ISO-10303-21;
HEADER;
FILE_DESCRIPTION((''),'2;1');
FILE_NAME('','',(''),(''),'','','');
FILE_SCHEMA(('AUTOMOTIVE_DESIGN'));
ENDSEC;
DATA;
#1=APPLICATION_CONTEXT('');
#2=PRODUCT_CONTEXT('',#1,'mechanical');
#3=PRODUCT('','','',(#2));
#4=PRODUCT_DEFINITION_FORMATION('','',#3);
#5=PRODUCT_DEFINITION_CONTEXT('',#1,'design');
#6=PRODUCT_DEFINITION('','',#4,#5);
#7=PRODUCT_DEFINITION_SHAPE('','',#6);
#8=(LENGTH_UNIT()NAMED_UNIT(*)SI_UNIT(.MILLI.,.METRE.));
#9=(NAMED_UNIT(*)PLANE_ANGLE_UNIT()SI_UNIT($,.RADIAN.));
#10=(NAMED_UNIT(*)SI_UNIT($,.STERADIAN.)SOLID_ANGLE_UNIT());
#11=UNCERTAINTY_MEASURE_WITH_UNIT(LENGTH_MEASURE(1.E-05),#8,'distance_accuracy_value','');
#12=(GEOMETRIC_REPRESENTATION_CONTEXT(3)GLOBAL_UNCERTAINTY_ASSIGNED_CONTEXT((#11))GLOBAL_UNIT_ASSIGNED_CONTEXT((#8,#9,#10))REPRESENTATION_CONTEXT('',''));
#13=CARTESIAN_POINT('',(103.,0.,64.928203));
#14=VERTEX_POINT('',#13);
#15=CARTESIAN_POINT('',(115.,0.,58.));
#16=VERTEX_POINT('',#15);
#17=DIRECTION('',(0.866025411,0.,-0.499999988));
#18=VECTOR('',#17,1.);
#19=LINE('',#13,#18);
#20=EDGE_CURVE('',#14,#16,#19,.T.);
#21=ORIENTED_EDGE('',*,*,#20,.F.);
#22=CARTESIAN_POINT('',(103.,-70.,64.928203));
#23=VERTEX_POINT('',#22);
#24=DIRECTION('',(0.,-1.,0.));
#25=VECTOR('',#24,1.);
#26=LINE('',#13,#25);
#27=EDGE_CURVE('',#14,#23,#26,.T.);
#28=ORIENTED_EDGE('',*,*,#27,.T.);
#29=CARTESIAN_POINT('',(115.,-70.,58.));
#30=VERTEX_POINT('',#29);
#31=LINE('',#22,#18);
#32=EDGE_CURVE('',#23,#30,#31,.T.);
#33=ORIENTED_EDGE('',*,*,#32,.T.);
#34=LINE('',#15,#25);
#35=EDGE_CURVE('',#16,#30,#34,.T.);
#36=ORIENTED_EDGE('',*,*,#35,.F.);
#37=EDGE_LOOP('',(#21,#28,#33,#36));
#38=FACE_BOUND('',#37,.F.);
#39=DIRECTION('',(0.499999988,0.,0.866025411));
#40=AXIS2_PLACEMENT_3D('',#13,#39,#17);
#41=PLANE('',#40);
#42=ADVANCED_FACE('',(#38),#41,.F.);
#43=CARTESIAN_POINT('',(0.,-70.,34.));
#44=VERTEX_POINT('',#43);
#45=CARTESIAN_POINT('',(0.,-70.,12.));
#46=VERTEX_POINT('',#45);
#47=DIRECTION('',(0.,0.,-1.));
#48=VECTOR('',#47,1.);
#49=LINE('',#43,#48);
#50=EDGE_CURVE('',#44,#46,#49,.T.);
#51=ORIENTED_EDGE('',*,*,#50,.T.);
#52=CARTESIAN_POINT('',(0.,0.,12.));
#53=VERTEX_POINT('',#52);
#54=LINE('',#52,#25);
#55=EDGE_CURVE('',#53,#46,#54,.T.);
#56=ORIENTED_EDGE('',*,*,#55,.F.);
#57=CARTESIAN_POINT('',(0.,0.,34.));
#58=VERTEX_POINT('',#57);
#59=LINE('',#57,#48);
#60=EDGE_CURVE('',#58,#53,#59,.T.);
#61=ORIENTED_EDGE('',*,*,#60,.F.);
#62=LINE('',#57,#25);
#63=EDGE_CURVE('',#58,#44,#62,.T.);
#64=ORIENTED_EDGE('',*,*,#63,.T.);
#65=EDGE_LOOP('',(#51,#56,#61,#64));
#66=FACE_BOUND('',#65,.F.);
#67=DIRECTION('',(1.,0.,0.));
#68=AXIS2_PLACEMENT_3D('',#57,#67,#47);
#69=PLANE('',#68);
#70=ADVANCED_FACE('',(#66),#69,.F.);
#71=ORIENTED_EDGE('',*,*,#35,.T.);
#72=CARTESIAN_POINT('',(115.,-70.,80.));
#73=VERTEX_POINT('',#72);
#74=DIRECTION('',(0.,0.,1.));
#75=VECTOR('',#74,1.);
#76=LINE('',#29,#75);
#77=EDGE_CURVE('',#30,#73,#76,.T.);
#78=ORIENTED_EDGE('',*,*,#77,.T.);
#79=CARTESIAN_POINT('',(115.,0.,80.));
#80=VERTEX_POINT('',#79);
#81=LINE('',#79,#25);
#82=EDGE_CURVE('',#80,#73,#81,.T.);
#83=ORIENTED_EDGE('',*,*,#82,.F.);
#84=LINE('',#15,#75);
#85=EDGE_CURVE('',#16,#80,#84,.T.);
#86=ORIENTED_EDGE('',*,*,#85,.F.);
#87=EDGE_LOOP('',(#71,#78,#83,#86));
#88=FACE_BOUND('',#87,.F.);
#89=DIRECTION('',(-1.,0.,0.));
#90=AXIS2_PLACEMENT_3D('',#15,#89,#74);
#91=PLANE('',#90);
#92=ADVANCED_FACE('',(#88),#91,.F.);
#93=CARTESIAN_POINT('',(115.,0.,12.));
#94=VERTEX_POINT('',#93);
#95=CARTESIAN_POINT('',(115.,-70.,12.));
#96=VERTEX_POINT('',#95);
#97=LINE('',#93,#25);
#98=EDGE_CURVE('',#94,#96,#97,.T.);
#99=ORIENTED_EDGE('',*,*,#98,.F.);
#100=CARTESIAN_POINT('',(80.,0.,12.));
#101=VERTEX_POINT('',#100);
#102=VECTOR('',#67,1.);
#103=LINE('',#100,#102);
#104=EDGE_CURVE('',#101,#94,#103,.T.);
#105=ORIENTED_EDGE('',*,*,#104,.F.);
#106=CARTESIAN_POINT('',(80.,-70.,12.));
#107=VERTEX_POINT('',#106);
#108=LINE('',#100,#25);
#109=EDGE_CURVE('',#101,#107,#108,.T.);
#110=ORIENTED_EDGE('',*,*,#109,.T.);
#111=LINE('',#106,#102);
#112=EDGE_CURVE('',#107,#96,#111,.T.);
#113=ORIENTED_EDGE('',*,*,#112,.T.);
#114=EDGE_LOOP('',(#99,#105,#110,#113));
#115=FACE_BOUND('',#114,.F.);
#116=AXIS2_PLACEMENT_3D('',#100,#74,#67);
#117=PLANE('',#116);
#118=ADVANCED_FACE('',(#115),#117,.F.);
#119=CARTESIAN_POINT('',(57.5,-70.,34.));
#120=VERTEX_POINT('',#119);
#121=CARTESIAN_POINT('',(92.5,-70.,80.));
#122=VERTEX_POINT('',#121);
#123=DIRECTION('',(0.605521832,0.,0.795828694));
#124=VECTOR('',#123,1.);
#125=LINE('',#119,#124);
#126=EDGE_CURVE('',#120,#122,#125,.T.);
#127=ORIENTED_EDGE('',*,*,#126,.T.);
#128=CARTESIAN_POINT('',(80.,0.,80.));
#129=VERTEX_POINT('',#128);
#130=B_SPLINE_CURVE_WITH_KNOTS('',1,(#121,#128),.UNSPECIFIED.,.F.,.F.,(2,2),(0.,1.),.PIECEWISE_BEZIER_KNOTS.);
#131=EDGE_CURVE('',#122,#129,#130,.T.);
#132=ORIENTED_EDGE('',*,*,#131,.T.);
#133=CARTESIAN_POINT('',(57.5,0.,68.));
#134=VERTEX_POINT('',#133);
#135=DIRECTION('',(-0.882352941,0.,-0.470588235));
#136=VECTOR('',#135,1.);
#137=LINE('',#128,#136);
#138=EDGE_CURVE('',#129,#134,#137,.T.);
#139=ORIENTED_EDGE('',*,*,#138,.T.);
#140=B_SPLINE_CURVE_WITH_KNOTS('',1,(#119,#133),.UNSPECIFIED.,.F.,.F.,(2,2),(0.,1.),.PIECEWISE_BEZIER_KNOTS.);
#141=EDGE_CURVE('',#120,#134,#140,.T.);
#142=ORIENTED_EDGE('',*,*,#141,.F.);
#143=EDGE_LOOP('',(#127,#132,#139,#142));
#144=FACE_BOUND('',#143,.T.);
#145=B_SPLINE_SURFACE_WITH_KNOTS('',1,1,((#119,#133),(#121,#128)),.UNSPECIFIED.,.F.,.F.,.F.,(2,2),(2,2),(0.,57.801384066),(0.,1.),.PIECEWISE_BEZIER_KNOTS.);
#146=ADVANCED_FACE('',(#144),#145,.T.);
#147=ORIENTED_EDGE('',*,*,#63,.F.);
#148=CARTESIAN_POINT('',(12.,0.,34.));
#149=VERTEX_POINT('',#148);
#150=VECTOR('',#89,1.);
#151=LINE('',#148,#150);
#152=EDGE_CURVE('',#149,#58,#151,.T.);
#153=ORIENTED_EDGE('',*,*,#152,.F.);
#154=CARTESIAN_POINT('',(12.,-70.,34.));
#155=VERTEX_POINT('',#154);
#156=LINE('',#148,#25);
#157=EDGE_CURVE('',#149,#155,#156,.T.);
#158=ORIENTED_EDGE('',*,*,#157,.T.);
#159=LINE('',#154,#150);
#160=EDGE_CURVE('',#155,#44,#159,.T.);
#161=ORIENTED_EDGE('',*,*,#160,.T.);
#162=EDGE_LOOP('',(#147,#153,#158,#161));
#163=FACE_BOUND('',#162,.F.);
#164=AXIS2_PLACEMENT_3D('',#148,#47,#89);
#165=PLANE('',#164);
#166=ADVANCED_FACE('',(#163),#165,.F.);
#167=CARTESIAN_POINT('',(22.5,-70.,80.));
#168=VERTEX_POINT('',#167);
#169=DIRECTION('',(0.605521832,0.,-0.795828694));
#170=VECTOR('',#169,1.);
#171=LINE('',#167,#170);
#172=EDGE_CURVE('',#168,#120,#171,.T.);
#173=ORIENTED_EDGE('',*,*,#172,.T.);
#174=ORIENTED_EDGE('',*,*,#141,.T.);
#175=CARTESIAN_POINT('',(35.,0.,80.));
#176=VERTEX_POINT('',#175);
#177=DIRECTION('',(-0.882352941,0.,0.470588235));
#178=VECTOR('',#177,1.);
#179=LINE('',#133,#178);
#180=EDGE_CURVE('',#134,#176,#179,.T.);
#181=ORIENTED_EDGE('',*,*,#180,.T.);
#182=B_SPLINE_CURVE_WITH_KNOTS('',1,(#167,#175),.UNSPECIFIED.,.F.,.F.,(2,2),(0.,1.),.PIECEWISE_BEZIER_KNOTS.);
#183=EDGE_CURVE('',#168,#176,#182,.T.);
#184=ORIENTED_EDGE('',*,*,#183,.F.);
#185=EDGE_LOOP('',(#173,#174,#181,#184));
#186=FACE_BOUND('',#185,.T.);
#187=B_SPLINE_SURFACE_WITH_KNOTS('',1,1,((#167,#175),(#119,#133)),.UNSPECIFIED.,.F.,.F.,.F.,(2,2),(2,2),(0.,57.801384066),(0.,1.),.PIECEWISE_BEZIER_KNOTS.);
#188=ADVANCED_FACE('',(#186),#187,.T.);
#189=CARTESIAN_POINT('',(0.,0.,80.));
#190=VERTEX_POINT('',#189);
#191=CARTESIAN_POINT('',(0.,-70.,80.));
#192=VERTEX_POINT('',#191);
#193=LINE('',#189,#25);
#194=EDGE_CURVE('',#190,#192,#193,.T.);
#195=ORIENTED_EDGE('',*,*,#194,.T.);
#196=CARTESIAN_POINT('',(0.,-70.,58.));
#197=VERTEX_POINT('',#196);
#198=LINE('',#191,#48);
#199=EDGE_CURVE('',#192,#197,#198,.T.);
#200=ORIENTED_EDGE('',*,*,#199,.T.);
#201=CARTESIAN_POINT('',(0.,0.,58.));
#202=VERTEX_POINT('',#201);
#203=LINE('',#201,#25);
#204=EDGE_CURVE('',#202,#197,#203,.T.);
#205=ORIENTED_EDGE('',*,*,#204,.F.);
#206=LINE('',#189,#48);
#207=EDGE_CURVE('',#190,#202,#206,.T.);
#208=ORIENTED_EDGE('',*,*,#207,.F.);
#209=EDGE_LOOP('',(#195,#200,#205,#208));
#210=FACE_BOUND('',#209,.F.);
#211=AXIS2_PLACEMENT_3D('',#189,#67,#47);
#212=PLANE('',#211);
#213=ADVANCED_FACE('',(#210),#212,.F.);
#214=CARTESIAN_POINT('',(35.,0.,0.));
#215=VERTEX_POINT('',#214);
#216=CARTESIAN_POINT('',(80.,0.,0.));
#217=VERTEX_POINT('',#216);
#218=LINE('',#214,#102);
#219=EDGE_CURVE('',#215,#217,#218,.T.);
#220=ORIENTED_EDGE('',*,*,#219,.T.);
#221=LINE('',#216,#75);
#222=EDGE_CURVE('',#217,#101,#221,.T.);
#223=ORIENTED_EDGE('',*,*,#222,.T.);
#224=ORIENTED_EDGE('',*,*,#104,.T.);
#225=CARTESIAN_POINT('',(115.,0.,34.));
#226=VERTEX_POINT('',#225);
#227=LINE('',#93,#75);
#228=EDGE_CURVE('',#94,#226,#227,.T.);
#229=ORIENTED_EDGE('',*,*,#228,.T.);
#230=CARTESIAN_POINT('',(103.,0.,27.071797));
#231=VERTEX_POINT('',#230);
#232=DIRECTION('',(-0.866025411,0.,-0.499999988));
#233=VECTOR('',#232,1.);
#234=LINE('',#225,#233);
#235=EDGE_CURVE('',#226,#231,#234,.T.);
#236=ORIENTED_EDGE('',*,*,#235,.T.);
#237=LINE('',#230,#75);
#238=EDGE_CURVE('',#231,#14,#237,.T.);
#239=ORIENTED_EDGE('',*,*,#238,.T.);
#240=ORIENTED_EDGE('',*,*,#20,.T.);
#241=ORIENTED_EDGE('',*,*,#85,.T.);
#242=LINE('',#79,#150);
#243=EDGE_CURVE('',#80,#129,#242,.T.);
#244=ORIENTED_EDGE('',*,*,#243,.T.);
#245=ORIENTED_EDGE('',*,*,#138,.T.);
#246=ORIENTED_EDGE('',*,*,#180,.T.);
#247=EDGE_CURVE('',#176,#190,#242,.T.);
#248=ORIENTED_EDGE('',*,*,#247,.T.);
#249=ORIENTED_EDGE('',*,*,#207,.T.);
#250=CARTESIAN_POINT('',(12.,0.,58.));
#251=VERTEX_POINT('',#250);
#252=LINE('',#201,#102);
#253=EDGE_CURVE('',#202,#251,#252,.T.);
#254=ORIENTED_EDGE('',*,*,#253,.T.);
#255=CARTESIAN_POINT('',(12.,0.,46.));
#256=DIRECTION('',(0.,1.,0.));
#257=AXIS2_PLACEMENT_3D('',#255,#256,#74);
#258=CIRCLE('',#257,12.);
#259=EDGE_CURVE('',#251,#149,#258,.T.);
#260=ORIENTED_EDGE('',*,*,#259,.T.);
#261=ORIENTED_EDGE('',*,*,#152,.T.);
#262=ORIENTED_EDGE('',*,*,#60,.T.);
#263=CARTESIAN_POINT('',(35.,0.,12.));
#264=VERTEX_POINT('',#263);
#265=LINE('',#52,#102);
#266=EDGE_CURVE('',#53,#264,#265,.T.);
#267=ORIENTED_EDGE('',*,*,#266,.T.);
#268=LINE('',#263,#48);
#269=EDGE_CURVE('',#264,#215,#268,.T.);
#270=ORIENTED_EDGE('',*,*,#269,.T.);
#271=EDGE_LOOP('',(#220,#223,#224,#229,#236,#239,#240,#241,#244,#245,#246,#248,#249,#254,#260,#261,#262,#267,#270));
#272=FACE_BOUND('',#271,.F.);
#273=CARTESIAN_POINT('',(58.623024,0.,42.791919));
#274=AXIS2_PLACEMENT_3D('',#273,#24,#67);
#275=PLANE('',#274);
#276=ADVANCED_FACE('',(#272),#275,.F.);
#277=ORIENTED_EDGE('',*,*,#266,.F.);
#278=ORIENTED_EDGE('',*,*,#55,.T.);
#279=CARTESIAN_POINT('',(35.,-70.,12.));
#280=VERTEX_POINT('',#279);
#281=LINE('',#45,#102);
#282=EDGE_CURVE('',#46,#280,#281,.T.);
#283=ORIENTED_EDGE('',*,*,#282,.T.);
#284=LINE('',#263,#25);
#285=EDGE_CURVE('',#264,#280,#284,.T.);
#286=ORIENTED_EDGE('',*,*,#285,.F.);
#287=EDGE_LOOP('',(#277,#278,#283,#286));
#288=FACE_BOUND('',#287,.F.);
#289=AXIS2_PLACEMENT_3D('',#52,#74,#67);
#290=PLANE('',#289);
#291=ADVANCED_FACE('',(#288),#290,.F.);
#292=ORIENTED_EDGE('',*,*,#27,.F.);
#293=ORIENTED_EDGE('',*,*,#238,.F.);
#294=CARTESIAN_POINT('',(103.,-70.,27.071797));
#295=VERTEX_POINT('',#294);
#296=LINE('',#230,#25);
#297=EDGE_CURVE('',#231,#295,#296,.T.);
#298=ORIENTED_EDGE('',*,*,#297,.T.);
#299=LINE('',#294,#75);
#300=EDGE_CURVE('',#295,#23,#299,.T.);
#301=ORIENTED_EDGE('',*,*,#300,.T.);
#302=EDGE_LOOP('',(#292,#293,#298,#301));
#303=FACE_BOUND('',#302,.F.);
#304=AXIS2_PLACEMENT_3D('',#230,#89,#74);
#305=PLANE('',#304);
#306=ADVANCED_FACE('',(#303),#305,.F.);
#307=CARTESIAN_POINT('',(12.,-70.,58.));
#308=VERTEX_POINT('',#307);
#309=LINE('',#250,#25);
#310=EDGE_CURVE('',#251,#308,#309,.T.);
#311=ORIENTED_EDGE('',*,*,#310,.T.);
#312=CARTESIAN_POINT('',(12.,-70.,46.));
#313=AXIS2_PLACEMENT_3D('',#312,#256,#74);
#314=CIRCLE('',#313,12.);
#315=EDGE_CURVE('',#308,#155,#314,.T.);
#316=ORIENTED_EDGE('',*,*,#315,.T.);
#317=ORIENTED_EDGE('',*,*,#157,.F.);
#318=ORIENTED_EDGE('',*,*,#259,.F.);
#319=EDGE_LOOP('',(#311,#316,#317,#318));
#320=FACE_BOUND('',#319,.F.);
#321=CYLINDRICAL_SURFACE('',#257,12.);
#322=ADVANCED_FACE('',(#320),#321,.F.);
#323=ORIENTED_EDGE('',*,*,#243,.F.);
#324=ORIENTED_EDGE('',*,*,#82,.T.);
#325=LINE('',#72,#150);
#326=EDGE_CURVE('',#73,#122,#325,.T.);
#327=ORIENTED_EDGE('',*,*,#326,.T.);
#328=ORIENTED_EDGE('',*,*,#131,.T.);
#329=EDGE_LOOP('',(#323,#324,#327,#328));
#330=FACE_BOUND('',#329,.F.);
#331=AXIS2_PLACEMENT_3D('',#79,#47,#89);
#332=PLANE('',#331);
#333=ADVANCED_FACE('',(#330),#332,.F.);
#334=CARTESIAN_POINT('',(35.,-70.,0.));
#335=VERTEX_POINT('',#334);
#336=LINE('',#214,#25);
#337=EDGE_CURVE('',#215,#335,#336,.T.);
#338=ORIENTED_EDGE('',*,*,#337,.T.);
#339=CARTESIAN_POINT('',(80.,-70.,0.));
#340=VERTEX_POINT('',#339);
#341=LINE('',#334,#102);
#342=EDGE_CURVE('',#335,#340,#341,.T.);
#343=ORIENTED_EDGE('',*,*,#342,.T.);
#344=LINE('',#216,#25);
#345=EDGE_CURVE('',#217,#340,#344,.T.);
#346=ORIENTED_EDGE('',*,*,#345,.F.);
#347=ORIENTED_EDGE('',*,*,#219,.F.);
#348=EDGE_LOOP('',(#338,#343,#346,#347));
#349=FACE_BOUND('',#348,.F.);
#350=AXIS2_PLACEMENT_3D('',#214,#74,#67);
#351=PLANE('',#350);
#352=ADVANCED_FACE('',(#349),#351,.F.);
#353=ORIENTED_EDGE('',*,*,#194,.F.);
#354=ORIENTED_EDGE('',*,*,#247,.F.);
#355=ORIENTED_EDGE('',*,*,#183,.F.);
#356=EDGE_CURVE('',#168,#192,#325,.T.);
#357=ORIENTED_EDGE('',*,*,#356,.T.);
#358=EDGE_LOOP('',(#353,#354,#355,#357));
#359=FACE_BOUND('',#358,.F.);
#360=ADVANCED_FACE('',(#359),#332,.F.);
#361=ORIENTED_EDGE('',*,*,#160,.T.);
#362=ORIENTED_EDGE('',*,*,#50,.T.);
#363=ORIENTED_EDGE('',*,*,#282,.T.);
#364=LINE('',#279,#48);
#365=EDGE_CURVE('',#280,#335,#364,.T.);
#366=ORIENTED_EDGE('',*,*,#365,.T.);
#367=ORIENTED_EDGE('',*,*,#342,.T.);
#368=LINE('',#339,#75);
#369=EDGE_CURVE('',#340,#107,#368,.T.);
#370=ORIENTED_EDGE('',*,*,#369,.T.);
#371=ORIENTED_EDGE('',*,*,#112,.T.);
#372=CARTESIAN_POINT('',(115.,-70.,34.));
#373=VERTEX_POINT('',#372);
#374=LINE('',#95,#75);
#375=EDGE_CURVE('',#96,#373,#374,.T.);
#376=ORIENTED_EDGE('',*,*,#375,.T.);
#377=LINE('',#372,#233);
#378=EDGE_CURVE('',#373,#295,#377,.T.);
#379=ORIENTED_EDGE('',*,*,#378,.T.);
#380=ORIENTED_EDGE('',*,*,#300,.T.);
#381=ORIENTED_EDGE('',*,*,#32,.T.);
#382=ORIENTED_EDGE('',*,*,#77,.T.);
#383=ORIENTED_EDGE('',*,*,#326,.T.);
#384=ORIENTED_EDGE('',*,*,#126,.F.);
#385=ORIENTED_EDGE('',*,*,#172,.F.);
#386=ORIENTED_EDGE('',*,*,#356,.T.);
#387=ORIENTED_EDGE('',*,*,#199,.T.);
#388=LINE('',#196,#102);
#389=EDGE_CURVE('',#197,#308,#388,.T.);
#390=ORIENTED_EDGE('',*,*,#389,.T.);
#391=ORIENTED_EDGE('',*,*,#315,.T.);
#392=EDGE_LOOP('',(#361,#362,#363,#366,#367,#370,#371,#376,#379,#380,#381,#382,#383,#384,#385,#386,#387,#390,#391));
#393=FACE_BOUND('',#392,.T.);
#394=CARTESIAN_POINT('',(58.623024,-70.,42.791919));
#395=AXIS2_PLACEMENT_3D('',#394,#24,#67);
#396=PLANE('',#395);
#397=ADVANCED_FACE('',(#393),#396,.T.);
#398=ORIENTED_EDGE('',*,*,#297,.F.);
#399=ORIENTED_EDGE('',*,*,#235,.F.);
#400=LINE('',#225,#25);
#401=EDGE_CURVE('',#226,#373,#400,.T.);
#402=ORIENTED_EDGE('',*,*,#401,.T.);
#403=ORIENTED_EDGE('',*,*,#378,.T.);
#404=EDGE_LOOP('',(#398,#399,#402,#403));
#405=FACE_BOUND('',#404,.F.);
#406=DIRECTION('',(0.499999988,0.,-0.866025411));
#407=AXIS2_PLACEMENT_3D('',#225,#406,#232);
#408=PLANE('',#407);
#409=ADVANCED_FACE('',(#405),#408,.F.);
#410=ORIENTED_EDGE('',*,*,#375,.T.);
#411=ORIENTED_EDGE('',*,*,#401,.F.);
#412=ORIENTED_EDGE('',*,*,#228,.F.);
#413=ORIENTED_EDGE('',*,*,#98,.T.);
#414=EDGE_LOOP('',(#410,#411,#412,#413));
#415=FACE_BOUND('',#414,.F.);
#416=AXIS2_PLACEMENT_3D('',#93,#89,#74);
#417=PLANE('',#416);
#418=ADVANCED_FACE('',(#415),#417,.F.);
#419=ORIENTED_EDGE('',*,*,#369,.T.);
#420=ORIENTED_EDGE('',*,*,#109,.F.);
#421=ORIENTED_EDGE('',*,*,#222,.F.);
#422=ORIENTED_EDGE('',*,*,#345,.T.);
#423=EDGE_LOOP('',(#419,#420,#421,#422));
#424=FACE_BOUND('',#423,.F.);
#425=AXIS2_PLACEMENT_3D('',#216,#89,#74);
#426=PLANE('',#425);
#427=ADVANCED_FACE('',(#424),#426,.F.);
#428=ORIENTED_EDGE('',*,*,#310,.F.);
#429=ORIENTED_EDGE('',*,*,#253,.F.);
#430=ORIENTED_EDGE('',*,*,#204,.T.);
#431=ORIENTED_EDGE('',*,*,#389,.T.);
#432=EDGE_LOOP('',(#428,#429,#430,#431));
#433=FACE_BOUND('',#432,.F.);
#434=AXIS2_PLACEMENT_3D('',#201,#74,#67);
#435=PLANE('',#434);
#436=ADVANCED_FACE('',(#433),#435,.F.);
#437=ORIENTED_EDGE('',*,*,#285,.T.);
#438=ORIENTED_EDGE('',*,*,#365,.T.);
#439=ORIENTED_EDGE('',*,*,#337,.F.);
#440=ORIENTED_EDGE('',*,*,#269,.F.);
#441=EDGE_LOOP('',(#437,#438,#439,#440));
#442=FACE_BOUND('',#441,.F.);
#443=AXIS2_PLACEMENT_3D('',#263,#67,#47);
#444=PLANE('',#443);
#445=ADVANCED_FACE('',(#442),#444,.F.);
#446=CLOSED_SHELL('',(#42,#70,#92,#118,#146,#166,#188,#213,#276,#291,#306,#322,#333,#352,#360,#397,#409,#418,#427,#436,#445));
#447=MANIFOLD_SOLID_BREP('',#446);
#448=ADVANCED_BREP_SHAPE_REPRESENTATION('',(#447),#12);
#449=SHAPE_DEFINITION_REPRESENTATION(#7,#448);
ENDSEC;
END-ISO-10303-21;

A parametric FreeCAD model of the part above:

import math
import FreeCAD as App
import Part
import Sketcher
from FreeCAD import Vector
Q = App.Units.Quantity


def add_polygon(sketch, points):
    """Adds a closed chain of lines whose ends are joined by coincident constraints."""
    first, n = sketch.GeometryCount, len(points)
    for a, b in zip(points, points[1:] + points[:1]):
        sketch.addGeometry(Part.LineSegment(App.Vector(*a, 0), App.Vector(*b, 0)), False)
    for i in range(n):
        sketch.addConstraint(Sketcher.Constraint("Coincident", first + i, 2, first + (i + 1) % n, 1))

doc = App.newDocument("Part")
body = doc.addObject("PartDesign::Body", "Body")

# Sketch on XZ plane
sketch1 = body.newObject("Sketcher::SketchObject", "Sketch")
sketch1.AttachmentSupport = (doc.getObject("XZ_Plane"), [""])
sketch1.MapMode = "FlatFace"
sketch1.addGeometry([
    Part.LineSegment(Vector(0, 34, 0), Vector(0, 12, 0)),  # 0
    Part.LineSegment(Vector(0, 12, 0), Vector(35, 12, 0)),  # 1
    Part.LineSegment(Vector(35, 12, 0), Vector(35, 0, 0)),  # 2
    Part.LineSegment(Vector(35, 0, 0), Vector(80, 0, 0)),  # 3
    Part.LineSegment(Vector(80, 0, 0), Vector(80, 12, 0)),  # 4
    Part.LineSegment(Vector(80, 12, 0), Vector(115, 12, 0)),  # 5
    Part.LineSegment(Vector(115, 12, 0), Vector(115, 34, 0)),  # 6
    Part.LineSegment(Vector(115, 34, 0), Vector(103, 27, 0)),  # 7
    Part.LineSegment(Vector(103, 27, 0), Vector(103, 65, 0)),  # 8
    Part.LineSegment(Vector(103, 65, 0), Vector(115, 58, 0)),  # 9
    Part.LineSegment(Vector(115, 58, 0), Vector(115, 80, 0)),  # 10
    Part.LineSegment(Vector(115, 80, 0), Vector(0, 80, 0)),  # 11
    Part.LineSegment(Vector(0, 80, 0), Vector(0, 58, 0)),  # 12
    Part.LineSegment(Vector(0, 58, 0), Vector(12, 58, 0)),  # 13
    Part.ArcOfCircle(Part.Circle(Vector(12, 46, 0), Vector(0, 0, 1), 12), math.radians(-90), math.radians(90)),  # 14
    Part.LineSegment(Vector(12, 34, 0), Vector(0, 34, 0)),  # 15
], False)
sketch1.addConstraint([
    Sketcher.Constraint("Coincident", 0, 2, 1, 1),
    Sketcher.Constraint("Coincident", 1, 2, 2, 1),
    Sketcher.Constraint("Coincident", 2, 2, 3, 1),
    Sketcher.Constraint("Coincident", 3, 2, 4, 1),
    Sketcher.Constraint("Coincident", 4, 2, 5, 1),
    Sketcher.Constraint("Coincident", 5, 2, 6, 1),
    Sketcher.Constraint("Coincident", 6, 2, 7, 1),
    Sketcher.Constraint("Coincident", 7, 2, 8, 1),
    Sketcher.Constraint("Coincident", 8, 2, 9, 1),
    Sketcher.Constraint("Coincident", 9, 2, 10, 1),
    Sketcher.Constraint("Coincident", 10, 2, 11, 1),
    Sketcher.Constraint("Coincident", 11, 2, 12, 1),
    Sketcher.Constraint("Coincident", 12, 2, 13, 1),
    Sketcher.Constraint("Tangent", 13, 2, 14, 2),
    Sketcher.Constraint("Tangent", 14, 1, 15, 1),
    Sketcher.Constraint("Coincident", 15, 2, 0, 1),
    Sketcher.Constraint("Vertical", 0),
    Sketcher.Constraint("Horizontal", 1),
    Sketcher.Constraint("Vertical", 2),
    Sketcher.Constraint("Horizontal", 3),
    Sketcher.Constraint("Vertical", 4),
    Sketcher.Constraint("Horizontal", 5),
    Sketcher.Constraint("Vertical", 6),
    Sketcher.Constraint("Vertical", 8),
    Sketcher.Constraint("Vertical", 10),
    Sketcher.Constraint("Horizontal", 11),
    Sketcher.Constraint("Vertical", 12),
    Sketcher.Constraint("Horizontal", 13),
    Sketcher.Constraint("Horizontal", 15),
    Sketcher.Constraint("PointOnObject", 0, 2, -2),
    Sketcher.Constraint("PointOnObject", 2, 2, -1),
    Sketcher.Constraint("PointOnObject", 11, 2, -2),
    Sketcher.Constraint("Horizontal", 1, 2, 4, 2),
    Sketcher.Constraint("Horizontal", 9, 2, 12, 2),
    Sketcher.Constraint("Horizontal", 6, 2, 14, 1),
    Sketcher.Constraint("Vertical", 6, 2, 9, 2),
    Sketcher.Constraint("Equal", 1, 5),
    Sketcher.Constraint("Equal", 15, 2),
    Sketcher.Constraint("Equal", 6, 10),
    Sketcher.Constraint("Equal", 7, 9),
    Sketcher.Constraint("Radius", 14, 12.0),
    Sketcher.Constraint("DistanceX", 1, 1, 1, 2, 35.0),
    Sketcher.Constraint("DistanceX", 3, 1, 3, 2, 45.0),
    Sketcher.Constraint("DistanceX", 13, 1, 13, 2, 12.0),
    Sketcher.Constraint("DistanceY", 0, 2, 0, 1, 22.0),
    Sketcher.Constraint("Angle", 7, Q("-150.000001 deg")),
    Sketcher.Constraint("DistanceX", -1, 1, 7, 2, 103.0),
])
pad1 = body.newObject("PartDesign::Pad", "Pad")
pad1.Profile = sketch1
pad1.Length = 70

# Sketch on XZ plane
sketch2 = body.newObject("Sketcher::SketchObject", "Sketch001")
sketch2.AttachmentSupport = (doc.getObject("XZ_Plane"), [""])
sketch2.MapMode = "FlatFace"
sketch2.AttachmentOffset = App.Placement(Vector(0, 0, 70), App.Rotation())
add_polygon(sketch2, [(92, 80), (22, 80), (58, 34)])  # lines 0-2
sketch2.addConstraint([
    Sketcher.Constraint("Horizontal", 0),
    Sketcher.Constraint("Equal", 1, 2),
    Sketcher.Constraint("DistanceX", 0, 2, 0, 1, 70.0),
    Sketcher.Constraint("DistanceY", -1, 1, 0, 2, 80.0),
    Sketcher.Constraint("DistanceY", -1, 1, 1, 2, 34.0),
    Sketcher.Constraint("DistanceX", -1, 1, 0, 2, 22.5),
])

# Sketch on XZ plane
sketch3 = body.newObject("Sketcher::SketchObject", "Sketch002")
sketch3.AttachmentSupport = (doc.getObject("XZ_Plane"), [""])
sketch3.MapMode = "FlatFace"
add_polygon(sketch3, [(80, 80), (58, 68), (35, 80)])  # lines 0-2
sketch3.addConstraint([
    Sketcher.Constraint("Horizontal", 2),
    Sketcher.Constraint("Equal", 0, 1),
    Sketcher.Constraint("DistanceX", 2, 1, 2, 2, 45.0),
    Sketcher.Constraint("DistanceY", -1, 1, 0, 2, 68.0),
    Sketcher.Constraint("DistanceX", -1, 1, 1, 2, 35.0),
    Sketcher.Constraint("DistanceY", -1, 1, 1, 2, 80.0),
])

subtractiveloft = body.newObject("PartDesign::SubtractiveLoft", "SubtractiveLoft")
subtractiveloft.Profile = sketch2
subtractiveloft.Sections = [sketch3]

doc.recompute()
